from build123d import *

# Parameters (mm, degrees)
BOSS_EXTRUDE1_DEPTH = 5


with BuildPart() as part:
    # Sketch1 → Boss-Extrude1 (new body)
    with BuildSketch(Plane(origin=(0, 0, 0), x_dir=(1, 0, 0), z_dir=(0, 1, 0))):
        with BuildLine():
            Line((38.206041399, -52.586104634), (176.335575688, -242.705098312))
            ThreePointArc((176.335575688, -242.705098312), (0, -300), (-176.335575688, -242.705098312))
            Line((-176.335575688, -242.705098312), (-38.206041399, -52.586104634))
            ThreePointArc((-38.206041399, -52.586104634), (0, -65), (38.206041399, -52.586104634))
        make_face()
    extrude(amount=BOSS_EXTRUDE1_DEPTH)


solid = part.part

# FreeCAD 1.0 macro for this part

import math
import FreeCAD as App
import Part
import Sketcher
from FreeCAD import Vector
Q = App.Units.Quantity

doc = App.newDocument("Part")
params = doc.addObject("Spreadsheet::Sheet", "Params")
for row, (alias, value) in enumerate([
    ("sketch1_radius", "65 mm"),
    ("sketch1_radius2", "300 mm"),
    ("pad1_length", "5 mm"),
], start=1):
    params.set(f"A{row}", alias)
    params.set(f"B{row}", "=" + value)
    params.setAlias(f"B{row}", alias)

body = doc.addObject("PartDesign::Body", "Body")

# Sketch on XZ plane
sketch1 = body.newObject("Sketcher::SketchObject", "Sketch")
sketch1.AttachmentSupport = (doc.getObject("XZ_Plane"), [""])
sketch1.MapMode = "FlatFace"
sketch1.addGeometry(Part.LineSegment(Vector(176, 243, 0), Vector(38, 53, 0)), False)
sketch1.addGeometry(Part.ArcOfCircle(Part.Circle(Vector(0, 0, 0), Vector(0, 0, 1), 65), math.radians(54), math.radians(126)), False)
sketch1.addGeometry(Part.LineSegment(Vector(-38, 53, 0), Vector(-176, 243, 0)), False)
sketch1.addGeometry(Part.ArcOfCircle(Part.Circle(Vector(0, 0, 0), Vector(0, 0, 1), 300), math.radians(54), math.radians(126)), False)
sketch1.addConstraint(Sketcher.Constraint("Coincident", 0, 2, 1, 1))
sketch1.addConstraint(Sketcher.Constraint("Coincident", 1, 2, 2, 1))
sketch1.addConstraint(Sketcher.Constraint("Coincident", 2, 2, 3, 2))
sketch1.addConstraint(Sketcher.Constraint("Coincident", 3, 1, 0, 1))
sketch1.addConstraint(Sketcher.Constraint("Coincident", 1, 3, -1, 1))
sketch1.addConstraint(Sketcher.Constraint("Coincident", 3, 3, -1, 1))
sketch1.addConstraint(Sketcher.Constraint("Horizontal", 0, 2, 1, 2))
sketch1.addConstraint(Sketcher.Constraint("Horizontal", 2, 2, 3, 1))
sketch1.addConstraint(Sketcher.Constraint("Radius", 1, 65.0))
sketch1.addConstraint(Sketcher.Constraint("Radius", 3, 300.0))
sketch1.addConstraint(Sketcher.Constraint("Angle", 0, Q("-126 deg")))
sketch1.addConstraint(Sketcher.Constraint("DistanceY", -1, 1, 2, 2, 242.705098))
sketch1.setExpression("Constraints[8]", "Params.sketch1_radius")
sketch1.setExpression("Constraints[9]", "Params.sketch1_radius2")
pad1 = body.newObject("PartDesign::Pad", "Pad")
pad1.Profile = sketch1
pad1.setExpression("Length", "Params.pad1_length")
pad1.Reversed = True

doc.recompute()
